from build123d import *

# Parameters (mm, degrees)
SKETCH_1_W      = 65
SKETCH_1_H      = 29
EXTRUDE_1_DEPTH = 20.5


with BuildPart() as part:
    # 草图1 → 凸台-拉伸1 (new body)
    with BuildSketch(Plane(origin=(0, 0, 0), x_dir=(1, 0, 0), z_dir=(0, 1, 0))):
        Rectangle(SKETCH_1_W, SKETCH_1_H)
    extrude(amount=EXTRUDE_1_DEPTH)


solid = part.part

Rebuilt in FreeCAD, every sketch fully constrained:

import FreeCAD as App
import Part
import Sketcher
from FreeCAD import Vector
Q = App.Units.Quantity

doc = App.newDocument("Part")
params = doc.addObject("Spreadsheet::Sheet", "Params")
for row, (alias, value) in enumerate([
    ("sketch1_width", "65 mm"),
    ("sketch1_height", "29 mm"),
    ("pad1_length", "20.5 mm"),
], start=1):
    params.set(f"A{row}", alias)
    params.set(f"B{row}", "=" + value)
    params.setAlias(f"B{row}", alias)

body = doc.addObject("PartDesign::Body", "Body")

# Sketch on XZ plane
sketch1 = body.newObject("Sketcher::SketchObject", "Sketch")
sketch1.AttachmentSupport = (doc.getObject("XZ_Plane"), [""])
sketch1.MapMode = "FlatFace"
sketch1.addGeometry([
    Part.LineSegment(Vector(-32.5, -14.5, 0), Vector(-32.5, 14.5, 0)),
    Part.LineSegment(Vector(-32.5, 14.5, 0), Vector(32.5, 14.5, 0)),
    Part.LineSegment(Vector(32.5, 14.5, 0), Vector(32.5, -14.5, 0)),
    Part.LineSegment(Vector(32.5, -14.5, 0), Vector(-32.5, -14.5, 0)),
], False)
sketch1.addConstraint([
    Sketcher.Constraint("Coincident", 0, 2, 1, 1),
    Sketcher.Constraint("Coincident", 1, 2, 2, 1),
    Sketcher.Constraint("Coincident", 2, 2, 3, 1),
    Sketcher.Constraint("Coincident", 3, 2, 0, 1),
    Sketcher.Constraint("Vertical", 0),
    Sketcher.Constraint("Horizontal", 1),
    Sketcher.Constraint("Vertical", 2),
    Sketcher.Constraint("Horizontal", 3),
    Sketcher.Constraint("Symmetric", 0, 2, 2, 2, -1, 1),
    Sketcher.Constraint("DistanceX", 1, 1, 1, 2, Q("65 mm")),
    Sketcher.Constraint("DistanceY", 0, 1, 0, 2, Q("29 mm")),
])
sketch1.setExpression("Constraints[9]", "Params.sketch1_width")
sketch1.setExpression("Constraints[10]", "Params.sketch1_height")
pad1 = body.newObject("PartDesign::Pad", "Pad")
pad1.Profile = sketch1
pad1.setExpression("Length", "Params.pad1_length")
pad1.Reversed = True

doc.recompute()
